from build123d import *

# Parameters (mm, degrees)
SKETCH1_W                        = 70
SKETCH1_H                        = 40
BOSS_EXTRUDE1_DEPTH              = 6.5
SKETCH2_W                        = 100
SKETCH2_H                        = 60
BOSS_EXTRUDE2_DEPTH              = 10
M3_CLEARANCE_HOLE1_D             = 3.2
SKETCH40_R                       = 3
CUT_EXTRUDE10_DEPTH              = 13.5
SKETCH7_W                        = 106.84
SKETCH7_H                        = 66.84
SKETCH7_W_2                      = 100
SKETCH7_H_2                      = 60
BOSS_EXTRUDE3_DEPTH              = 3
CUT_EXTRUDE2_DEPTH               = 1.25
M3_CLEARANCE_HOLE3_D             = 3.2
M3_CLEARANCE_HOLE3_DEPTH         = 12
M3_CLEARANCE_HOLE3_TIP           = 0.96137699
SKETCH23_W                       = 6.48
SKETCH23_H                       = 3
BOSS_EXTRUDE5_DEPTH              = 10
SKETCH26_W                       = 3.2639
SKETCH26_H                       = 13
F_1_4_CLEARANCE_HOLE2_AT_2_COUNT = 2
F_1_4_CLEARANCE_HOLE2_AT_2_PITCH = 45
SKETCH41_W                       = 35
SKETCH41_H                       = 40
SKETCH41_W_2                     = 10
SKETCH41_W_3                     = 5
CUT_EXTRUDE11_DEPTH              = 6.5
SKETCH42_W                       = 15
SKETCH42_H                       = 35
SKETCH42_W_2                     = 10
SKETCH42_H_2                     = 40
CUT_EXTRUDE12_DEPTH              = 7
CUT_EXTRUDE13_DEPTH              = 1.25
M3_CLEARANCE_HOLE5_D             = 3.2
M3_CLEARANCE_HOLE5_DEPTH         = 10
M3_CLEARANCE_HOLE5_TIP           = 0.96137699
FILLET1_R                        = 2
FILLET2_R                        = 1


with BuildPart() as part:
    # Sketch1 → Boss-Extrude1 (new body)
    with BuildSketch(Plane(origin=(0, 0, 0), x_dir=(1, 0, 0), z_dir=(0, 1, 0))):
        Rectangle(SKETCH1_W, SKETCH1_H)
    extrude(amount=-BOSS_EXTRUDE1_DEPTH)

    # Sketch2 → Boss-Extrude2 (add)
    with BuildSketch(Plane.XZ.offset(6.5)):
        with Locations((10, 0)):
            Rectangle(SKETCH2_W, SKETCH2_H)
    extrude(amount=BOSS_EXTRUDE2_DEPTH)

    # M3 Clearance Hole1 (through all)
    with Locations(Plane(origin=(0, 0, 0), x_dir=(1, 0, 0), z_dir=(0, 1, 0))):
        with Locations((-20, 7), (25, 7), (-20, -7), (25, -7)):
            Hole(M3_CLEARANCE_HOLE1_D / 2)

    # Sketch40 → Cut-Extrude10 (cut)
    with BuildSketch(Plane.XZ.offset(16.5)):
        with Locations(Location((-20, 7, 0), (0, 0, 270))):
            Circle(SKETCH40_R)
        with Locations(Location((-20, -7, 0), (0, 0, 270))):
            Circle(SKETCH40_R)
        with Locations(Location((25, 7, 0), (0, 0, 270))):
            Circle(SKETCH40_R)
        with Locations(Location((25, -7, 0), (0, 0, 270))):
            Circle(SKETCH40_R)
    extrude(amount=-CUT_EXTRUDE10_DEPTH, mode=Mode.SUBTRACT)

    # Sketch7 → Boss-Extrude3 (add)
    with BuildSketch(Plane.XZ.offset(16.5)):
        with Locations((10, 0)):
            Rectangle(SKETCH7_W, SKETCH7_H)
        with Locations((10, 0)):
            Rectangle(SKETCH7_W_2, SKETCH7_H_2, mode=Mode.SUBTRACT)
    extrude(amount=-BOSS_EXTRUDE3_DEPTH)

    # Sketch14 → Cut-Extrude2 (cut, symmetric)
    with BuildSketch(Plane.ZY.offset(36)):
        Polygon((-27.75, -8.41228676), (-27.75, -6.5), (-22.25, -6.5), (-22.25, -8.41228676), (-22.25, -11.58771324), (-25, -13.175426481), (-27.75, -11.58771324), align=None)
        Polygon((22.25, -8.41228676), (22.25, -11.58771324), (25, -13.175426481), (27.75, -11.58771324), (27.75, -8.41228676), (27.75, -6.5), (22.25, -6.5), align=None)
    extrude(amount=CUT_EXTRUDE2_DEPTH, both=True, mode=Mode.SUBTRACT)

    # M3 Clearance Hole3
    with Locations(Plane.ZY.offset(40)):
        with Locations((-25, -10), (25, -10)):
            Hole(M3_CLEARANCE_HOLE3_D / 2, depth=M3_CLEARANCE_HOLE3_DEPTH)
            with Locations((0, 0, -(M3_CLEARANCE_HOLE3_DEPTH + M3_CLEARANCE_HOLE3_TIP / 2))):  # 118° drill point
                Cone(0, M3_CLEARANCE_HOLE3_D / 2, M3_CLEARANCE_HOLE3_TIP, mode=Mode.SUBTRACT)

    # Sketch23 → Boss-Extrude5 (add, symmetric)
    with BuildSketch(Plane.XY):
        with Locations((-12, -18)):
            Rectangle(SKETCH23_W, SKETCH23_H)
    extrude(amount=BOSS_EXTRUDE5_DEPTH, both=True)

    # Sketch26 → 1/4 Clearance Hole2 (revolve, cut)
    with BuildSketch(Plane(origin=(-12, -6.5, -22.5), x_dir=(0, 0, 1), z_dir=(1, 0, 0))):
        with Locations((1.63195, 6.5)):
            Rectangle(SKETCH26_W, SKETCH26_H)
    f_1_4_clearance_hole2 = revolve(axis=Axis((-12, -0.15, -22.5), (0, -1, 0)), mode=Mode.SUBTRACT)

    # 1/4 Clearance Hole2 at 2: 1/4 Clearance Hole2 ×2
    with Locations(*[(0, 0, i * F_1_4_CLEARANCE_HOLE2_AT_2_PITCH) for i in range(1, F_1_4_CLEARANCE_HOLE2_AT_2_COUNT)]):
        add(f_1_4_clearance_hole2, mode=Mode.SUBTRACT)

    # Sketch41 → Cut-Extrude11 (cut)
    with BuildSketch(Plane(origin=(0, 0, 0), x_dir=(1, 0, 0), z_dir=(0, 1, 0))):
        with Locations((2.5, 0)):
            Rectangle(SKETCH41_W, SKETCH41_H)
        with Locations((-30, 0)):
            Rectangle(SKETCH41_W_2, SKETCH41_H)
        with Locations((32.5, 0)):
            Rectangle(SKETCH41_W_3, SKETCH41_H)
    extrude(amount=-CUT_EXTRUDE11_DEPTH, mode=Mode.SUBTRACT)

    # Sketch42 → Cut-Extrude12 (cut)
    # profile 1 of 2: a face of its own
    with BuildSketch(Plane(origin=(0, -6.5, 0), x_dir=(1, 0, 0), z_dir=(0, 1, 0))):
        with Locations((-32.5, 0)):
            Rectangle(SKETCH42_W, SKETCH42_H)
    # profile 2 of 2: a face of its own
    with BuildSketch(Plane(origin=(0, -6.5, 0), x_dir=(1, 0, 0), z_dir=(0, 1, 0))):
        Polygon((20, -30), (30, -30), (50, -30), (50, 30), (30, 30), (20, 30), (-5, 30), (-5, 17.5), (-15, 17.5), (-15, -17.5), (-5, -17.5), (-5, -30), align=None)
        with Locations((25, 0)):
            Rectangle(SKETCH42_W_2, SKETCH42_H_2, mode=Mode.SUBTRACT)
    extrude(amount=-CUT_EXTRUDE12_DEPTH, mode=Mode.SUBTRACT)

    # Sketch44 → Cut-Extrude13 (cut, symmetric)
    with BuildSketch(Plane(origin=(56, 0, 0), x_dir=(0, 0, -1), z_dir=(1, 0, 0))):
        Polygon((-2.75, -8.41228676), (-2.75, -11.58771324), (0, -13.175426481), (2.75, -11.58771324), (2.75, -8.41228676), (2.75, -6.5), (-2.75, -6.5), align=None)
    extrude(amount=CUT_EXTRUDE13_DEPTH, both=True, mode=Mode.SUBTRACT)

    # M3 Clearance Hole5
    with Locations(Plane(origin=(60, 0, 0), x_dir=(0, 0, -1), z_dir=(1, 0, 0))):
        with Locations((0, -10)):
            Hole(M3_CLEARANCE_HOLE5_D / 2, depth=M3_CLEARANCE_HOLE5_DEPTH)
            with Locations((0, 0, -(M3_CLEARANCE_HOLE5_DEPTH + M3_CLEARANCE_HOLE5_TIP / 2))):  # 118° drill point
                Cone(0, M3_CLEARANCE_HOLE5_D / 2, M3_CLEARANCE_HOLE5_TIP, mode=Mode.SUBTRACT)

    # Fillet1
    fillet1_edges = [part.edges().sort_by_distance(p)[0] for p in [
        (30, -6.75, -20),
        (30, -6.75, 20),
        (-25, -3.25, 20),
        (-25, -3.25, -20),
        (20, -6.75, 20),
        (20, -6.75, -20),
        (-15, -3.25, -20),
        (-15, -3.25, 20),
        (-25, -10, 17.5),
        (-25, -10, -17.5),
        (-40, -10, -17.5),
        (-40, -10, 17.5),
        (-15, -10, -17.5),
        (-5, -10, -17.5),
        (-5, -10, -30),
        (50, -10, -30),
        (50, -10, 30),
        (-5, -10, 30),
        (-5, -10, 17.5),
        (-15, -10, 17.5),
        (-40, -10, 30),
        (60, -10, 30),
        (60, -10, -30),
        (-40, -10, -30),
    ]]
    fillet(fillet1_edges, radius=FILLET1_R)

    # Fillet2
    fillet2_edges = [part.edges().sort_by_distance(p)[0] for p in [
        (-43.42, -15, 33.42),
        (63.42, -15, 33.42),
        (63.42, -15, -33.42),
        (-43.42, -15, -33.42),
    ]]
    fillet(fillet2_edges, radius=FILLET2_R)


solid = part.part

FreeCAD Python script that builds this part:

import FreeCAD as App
import Part
import Sketcher

V = App.Vector
Q = App.Units.Quantity


def edges_at(feature, points):
    """Names of the edges that pass closest to the given points."""
    edges = feature.Shape.Edges
    near = lambda p: min(range(len(edges)), key=lambda i: edges[i].distToShape(Part.Vertex(*p))[0])
    return sorted({f"Edge{near(p) + 1}" for p in points})

doc = App.newDocument("Part")
body = doc.addObject("PartDesign::Body", "Body")

# Sketch on XZ plane
sketch1 = body.newObject("Sketcher::SketchObject", "Sketch")
sketch1.AttachmentSupport = (doc.getObject("XZ_Plane"), [""])
sketch1.MapMode = "FlatFace"
sketch1.addGeometry(Part.LineSegment(V(-35, -20, 0), V(-35, 20, 0)), False)
sketch1.addGeometry(Part.LineSegment(V(-35, 20, 0), V(35, 20, 0)), False)
sketch1.addGeometry(Part.LineSegment(V(35, 20, 0), V(35, -20, 0)), False)
sketch1.addGeometry(Part.LineSegment(V(35, -20, 0), V(-35, -20, 0)), False)
sketch1.addConstraint(Sketcher.Constraint("Coincident", 0, 2, 1, 1))
sketch1.addConstraint(Sketcher.Constraint("Coincident", 1, 2, 2, 1))
sketch1.addConstraint(Sketcher.Constraint("Coincident", 2, 2, 3, 1))
sketch1.addConstraint(Sketcher.Constraint("Coincident", 3, 2, 0, 1))
sketch1.addConstraint(Sketcher.Constraint("Vertical", 0))
sketch1.addConstraint(Sketcher.Constraint("Horizontal", 1))
sketch1.addConstraint(Sketcher.Constraint("Vertical", 2))
sketch1.addConstraint(Sketcher.Constraint("Horizontal", 3))
sketch1.addConstraint(Sketcher.Constraint("Symmetric", 0, 2, 2, 2, -1, 1))
sketch1.addConstraint(Sketcher.Constraint("DistanceX", 1, 1, 1, 2, Q("70 mm")))
sketch1.addConstraint(Sketcher.Constraint("DistanceY", 0, 1, 0, 2, Q("40 mm")))
pad1 = body.newObject("PartDesign::Pad", "Pad")
pad1.Profile = sketch1
pad1.Length = 6.5

# Sketch on XZ plane
sketch2 = body.newObject("Sketcher::SketchObject", "Sketch001")
sketch2.AttachmentSupport = (doc.getObject("XZ_Plane"), [""])
sketch2.MapMode = "FlatFace"
sketch2.AttachmentOffset = App.Placement(V(0, 0, 6.5), App.Rotation())
sketch2.addGeometry(Part.LineSegment(V(-40, 30, 0), V(-40, -30, 0)), False)
sketch2.addGeometry(Part.LineSegment(V(-40, -30, 0), V(60, -30, 0)), False)
sketch2.addGeometry(Part.LineSegment(V(60, -30, 0), V(60, 30, 0)), False)
sketch2.addGeometry(Part.LineSegment(V(60, 30, 0), V(-40, 30, 0)), False)
sketch2.addConstraint(Sketcher.Constraint("Coincident", 0, 2, 1, 1))
sketch2.addConstraint(Sketcher.Constraint("Coincident", 1, 2, 2, 1))
sketch2.addConstraint(Sketcher.Constraint("Coincident", 2, 2, 3, 1))
sketch2.addConstraint(Sketcher.Constraint("Coincident", 3, 2, 0, 1))
sketch2.addConstraint(Sketcher.Constraint("Vertical", 0))
sketch2.addConstraint(Sketcher.Constraint("Horizontal", 1))
sketch2.addConstraint(Sketcher.Constraint("Vertical", 2))
sketch2.addConstraint(Sketcher.Constraint("Horizontal", 3))
sketch2.addConstraint(Sketcher.Constraint("DistanceX", 1, 1, 1, 2, Q("100 mm")))
sketch2.addConstraint(Sketcher.Constraint("DistanceY", 0, 2, 0, 1, Q("60 mm")))
sketch2.addConstraint(Sketcher.Constraint("DistanceX", 0, 2, -1, 1, Q("40 mm")))
sketch2.addConstraint(Sketcher.Constraint("DistanceY", 0, 2, -1, 1, Q("30 mm")))
pad2 = body.newObject("PartDesign::Pad", "Pad001")
pad2.Profile = sketch2
pad2.Length = 10

# Sketch on XZ plane
sketch3 = body.newObject("Sketcher::SketchObject", "Sketch002")
sketch3.AttachmentSupport = (doc.getObject("XZ_Plane"), [""])
sketch3.MapMode = "FlatFace"
sketch3.addGeometry(Part.Circle(V(-20, -7, 0), V(0, 0, 1), 1.6), False)
sketch3.addGeometry(Part.Circle(V(25, -7, 0), V(0, 0, 1), 1.6), False)
sketch3.addGeometry(Part.Circle(V(-20, 7, 0), V(0, 0, 1), 1.6), False)
sketch3.addGeometry(Part.Circle(V(25, 7, 0), V(0, 0, 1), 1.6), False)
sketch3.addConstraint(Sketcher.Constraint("Equal", 0, 1))
sketch3.addConstraint(Sketcher.Constraint("Equal", 1, 2))
sketch3.addConstraint(Sketcher.Constraint("Equal", 2, 3))
sketch3.addConstraint(Sketcher.Constraint("Symmetric", 0, 3, 2, 3, -1))
sketch3.addConstraint(Sketcher.Constraint("Symmetric", 1, 3, 3, 3, -1))
sketch3.addConstraint(Sketcher.Constraint("Horizontal", 0, 3, 1, 3))
sketch3.addConstraint(Sketcher.Constraint("Diameter", 0, Q("3.2 mm")))
sketch3.addConstraint(Sketcher.Constraint("DistanceX", 0, 3, -1, 1, Q("20 mm")))
sketch3.addConstraint(Sketcher.Constraint("DistanceY", 0, 3, -1, 1, Q("7 mm")))
sketch3.addConstraint(Sketcher.Constraint("DistanceX", -1, 1, 1, 3, Q("25 mm")))
doc.recompute()
hole = body.newObject("PartDesign::Hole", "Hole")
hole.Profile = sketch3
hole.ThreadType = "None"
hole.Diameter = 3.2
hole.DepthType = "ThroughAll"
hole.Reversed = True

# Sketch on XZ plane
sketch4 = body.newObject("Sketcher::SketchObject", "Sketch003")
sketch4.AttachmentSupport = (doc.getObject("XZ_Plane"), [""])
sketch4.MapMode = "FlatFace"
sketch4.AttachmentOffset = App.Placement(V(0, 0, 16.5), App.Rotation())
sketch4.addGeometry(Part.Circle(V(-20, 7, 0), V(0, 0, 1), 3), False)
sketch4.addGeometry(Part.Circle(V(-20, -7, 0), V(0, 0, 1), 3), False)
sketch4.addGeometry(Part.Circle(V(25, 7, 0), V(0, 0, 1), 3), False)
sketch4.addGeometry(Part.Circle(V(25, -7, 0), V(0, 0, 1), 3), False)
sketch4.addConstraint(Sketcher.Constraint("Equal", 0, 1))
sketch4.addConstraint(Sketcher.Constraint("Equal", 1, 2))
sketch4.addConstraint(Sketcher.Constraint("Equal", 2, 3))
sketch4.addConstraint(Sketcher.Constraint("Symmetric", 0, 3, 1, 3, -1))
sketch4.addConstraint(Sketcher.Constraint("Symmetric", 2, 3, 3, 3, -1))
sketch4.addConstraint(Sketcher.Constraint("Horizontal", 0, 3, 2, 3))
sketch4.addConstraint(Sketcher.Constraint("Diameter", 0, Q("6 mm")))
sketch4.addConstraint(Sketcher.Constraint("DistanceX", 0, 3, -1, 1, Q("20 mm")))
sketch4.addConstraint(Sketcher.Constraint("DistanceY", -1, 1, 0, 3, Q("7 mm")))
sketch4.addConstraint(Sketcher.Constraint("DistanceX", -1, 1, 2, 3, Q("25 mm")))
pocket1 = body.newObject("PartDesign::Pocket", "Pocket")
pocket1.Profile = sketch4
pocket1.Length = 13.5

# Sketch on XZ plane
sketch5 = body.newObject("Sketcher::SketchObject", "Sketch004")
sketch5.AttachmentSupport = (doc.getObject("XZ_Plane"), [""])
sketch5.MapMode = "FlatFace"
sketch5.AttachmentOffset = App.Placement(V(0, 0, 16.5), App.Rotation())
sketch5.addGeometry(Part.LineSegment(V(-43, 33, 0), V(-43, -33, 0)), False)
sketch5.addGeometry(Part.LineSegment(V(-43, -33, 0), V(63, -33, 0)), False)
sketch5.addGeometry(Part.LineSegment(V(63, -33, 0), V(63, 33, 0)), False)
sketch5.addGeometry(Part.LineSegment(V(63, 33, 0), V(-43, 33, 0)), False)
sketch5.addGeometry(Part.LineSegment(V(60, -30, 0), V(-40, -30, 0)), False)
sketch5.addGeometry(Part.LineSegment(V(-40, -30, 0), V(-40, 30, 0)), False)
sketch5.addGeometry(Part.LineSegment(V(-40, 30, 0), V(60, 30, 0)), False)
sketch5.addGeometry(Part.LineSegment(V(60, 30, 0), V(60, -30, 0)), False)
sketch5.addConstraint(Sketcher.Constraint("Coincident", 0, 2, 1, 1))
sketch5.addConstraint(Sketcher.Constraint("Coincident", 1, 2, 2, 1))
sketch5.addConstraint(Sketcher.Constraint("Coincident", 2, 2, 3, 1))
sketch5.addConstraint(Sketcher.Constraint("Coincident", 3, 2, 0, 1))
sketch5.addConstraint(Sketcher.Constraint("Coincident", 4, 2, 5, 1))
sketch5.addConstraint(Sketcher.Constraint("Coincident", 5, 2, 6, 1))
sketch5.addConstraint(Sketcher.Constraint("Coincident", 6, 2, 7, 1))
sketch5.addConstraint(Sketcher.Constraint("Coincident", 7, 2, 4, 1))
sketch5.addConstraint(Sketcher.Constraint("Vertical", 0))
sketch5.addConstraint(Sketcher.Constraint("Horizontal", 1))
sketch5.addConstraint(Sketcher.Constraint("Vertical", 2))
sketch5.addConstraint(Sketcher.Constraint("Horizontal", 3))
sketch5.addConstraint(Sketcher.Constraint("Horizontal", 4))
sketch5.addConstraint(Sketcher.Constraint("Vertical", 5))
sketch5.addConstraint(Sketcher.Constraint("Horizontal", 6))
sketch5.addConstraint(Sketcher.Constraint("Vertical", 7))
sketch5.addConstraint(Sketcher.Constraint("DistanceX", 4, 2, 4, 1, Q("100 mm")))
sketch5.addConstraint(Sketcher.Constraint("DistanceY", 5, 1, 5, 2, Q("60 mm")))
sketch5.addConstraint(Sketcher.Constraint("DistanceX", 4, 2, -1, 1, Q("40 mm")))
sketch5.addConstraint(Sketcher.Constraint("DistanceY", 4, 2, -1, 1, Q("30 mm")))
sketch5.addConstraint(Sketcher.Constraint("DistanceX", 1, 1, 1, 2, Q("106.84 mm")))
sketch5.addConstraint(Sketcher.Constraint("DistanceY", 0, 2, 0, 1, Q("66.84 mm")))
sketch5.addConstraint(Sketcher.Constraint("DistanceX", 0, 2, -1, 1, Q("43.42 mm")))
sketch5.addConstraint(Sketcher.Constraint("DistanceY", 0, 2, -1, 1, Q("33.42 mm")))
pad3 = body.newObject("PartDesign::Pad", "Pad002")
pad3.Profile = sketch5
pad3.Length = 3
pad3.Reversed = True

# Sketch on YZ plane
sketch6 = body.newObject("Sketcher::SketchObject", "Sketch005")
sketch6.AttachmentSupport = (doc.getObject("YZ_Plane"), [""])
sketch6.MapMode = "FlatFace"
sketch6.AttachmentOffset = App.Placement(V(0, 0, -36), App.Rotation())
sketch6.addGeometry(Part.LineSegment(V(-6.5, -27.8, 0), V(-11.6, -27.8, 0)), False)
sketch6.addGeometry(Part.LineSegment(V(-11.6, -27.8, 0), V(-13.2, -25, 0)), False)
sketch6.addGeometry(Part.LineSegment(V(-13.2, -25, 0), V(-11.6, -22.2, 0)), False)
sketch6.addGeometry(Part.LineSegment(V(-11.6, -22.2, 0), V(-6.5, -22.2, 0)), False)
sketch6.addGeometry(Part.LineSegment(V(-6.5, -22.2, 0), V(-6.5, -27.8, 0)), False)
sketch6.addGeometry(Part.LineSegment(V(-11.6, 22.2, 0), V(-13.2, 25, 0)), False)
sketch6.addGeometry(Part.LineSegment(V(-13.2, 25, 0), V(-11.6, 27.8, 0)), False)
sketch6.addGeometry(Part.LineSegment(V(-11.6, 27.8, 0), V(-6.5, 27.8, 0)), False)
sketch6.addGeometry(Part.LineSegment(V(-6.5, 27.8, 0), V(-6.5, 22.2, 0)), False)
sketch6.addGeometry(Part.LineSegment(V(-6.5, 22.2, 0), V(-11.6, 22.2, 0)), False)
sketch6.addConstraint(Sketcher.Constraint("Coincident", 0, 2, 1, 1))
sketch6.addConstraint(Sketcher.Constraint("Coincident", 1, 2, 2, 1))
sketch6.addConstraint(Sketcher.Constraint("Coincident", 2, 2, 3, 1))
sketch6.addConstraint(Sketcher.Constraint("Coincident", 3, 2, 4, 1))
sketch6.addConstraint(Sketcher.Constraint("Coincident", 4, 2, 0, 1))
sketch6.addConstraint(Sketcher.Constraint("Coincident", 5, 2, 6, 1))
sketch6.addConstraint(Sketcher.Constraint("Coincident", 6, 2, 7, 1))
sketch6.addConstraint(Sketcher.Constraint("Coincident", 7, 2, 8, 1))
sketch6.addConstraint(Sketcher.Constraint("Coincident", 8, 2, 9, 1))
sketch6.addConstraint(Sketcher.Constraint("Coincident", 9, 2, 5, 1))
sketch6.addConstraint(Sketcher.Constraint("Horizontal", 0))
sketch6.addConstraint(Sketcher.Constraint("Horizontal", 3))
sketch6.addConstraint(Sketcher.Constraint("Vertical", 4))
sketch6.addConstraint(Sketcher.Constraint("Horizontal", 7))
sketch6.addConstraint(Sketcher.Constraint("Vertical", 8))
sketch6.addConstraint(Sketcher.Constraint("Horizontal", 9))
sketch6.addConstraint(Sketcher.Constraint("Symmetric", 1, 2, 5, 2, -1))
sketch6.addConstraint(Sketcher.Constraint("Symmetric", 0, 2, 6, 2, -1))
sketch6.addConstraint(Sketcher.Constraint("Symmetric", 3, 2, 8, 2, -1))
sketch6.addConstraint(Sketcher.Constraint("Parallel", 1, 5))
sketch6.addConstraint(Sketcher.Constraint("Parallel", 2, 6))
sketch6.addConstraint(Sketcher.Constraint("Vertical", 0, 2, 2, 2))
sketch6.addConstraint(Sketcher.Constraint("Angle", 1, Q("120 deg")))
sketch6.addConstraint(Sketcher.Constraint("DistanceY", 4, 2, 4, 1, Q("5.5 mm")))
sketch6.addConstraint(Sketcher.Constraint("DistanceY", 1, 2, -1, 1, Q("25 mm")))
sketch6.addConstraint(Sketcher.Constraint("DistanceX", 3, 2, -1, 1, Q("6.5 mm")))
sketch6.addConstraint(Sketcher.Constraint("DistanceX", 0, 2, 0, 1, Q("5.087713 mm")))
pocket2 = body.newObject("PartDesign::Pocket", "Pocket001")
pocket2.Profile = sketch6
pocket2.Length = 2.5
pocket2.Midplane = True

# Sketch on YZ plane
sketch7 = body.newObject("Sketcher::SketchObject", "Sketch006")
sketch7.AttachmentSupport = (doc.getObject("YZ_Plane"), [""])
sketch7.MapMode = "FlatFace"
sketch7.AttachmentOffset = App.Placement(V(0, 0, -40), App.Rotation())
sketch7.addGeometry(Part.Circle(V(-10, -25, 0), V(0, 0, 1), 1.6), False)
sketch7.addGeometry(Part.Circle(V(-10, 25, 0), V(0, 0, 1), 1.6), False)
sketch7.addConstraint(Sketcher.Constraint("Equal", 0, 1))
sketch7.addConstraint(Sketcher.Constraint("Symmetric", 0, 3, 1, 3, -1))
sketch7.addConstraint(Sketcher.Constraint("Diameter", 0, Q("3.2 mm")))
sketch7.addConstraint(Sketcher.Constraint("DistanceX", 0, 3, -1, 1, Q("10 mm")))
sketch7.addConstraint(Sketcher.Constraint("DistanceY", 0, 3, -1, 1, Q("25 mm")))
doc.recompute()
hole2 = body.newObject("PartDesign::Hole", "Hole001")
hole2.Profile = sketch7
hole2.ThreadType = "None"
hole2.Diameter = 3.2
hole2.DepthType = "Dimension"
hole2.Depth = 12
hole2.DrillPoint = "Angled"
hole2.DrillPointAngle = 118
hole2.Reversed = True

# Sketch on XY plane
sketch8 = body.newObject("Sketcher::SketchObject", "Sketch007")
sketch8.AttachmentSupport = (doc.getObject("XY_Plane"), [""])
sketch8.MapMode = "FlatFace"
sketch8.addGeometry(Part.LineSegment(V(-15.2, -16.5, 0), V(-15.2, -19.5, 0)), False)
sketch8.addGeometry(Part.LineSegment(V(-15.2, -19.5, 0), V(-8.8, -19.5, 0)), False)
sketch8.addGeometry(Part.LineSegment(V(-8.8, -19.5, 0), V(-8.8, -16.5, 0)), False)
sketch8.addGeometry(Part.LineSegment(V(-8.8, -16.5, 0), V(-15.2, -16.5, 0)), False)
sketch8.addConstraint(Sketcher.Constraint("Coincident", 0, 2, 1, 1))
sketch8.addConstraint(Sketcher.Constraint("Coincident", 1, 2, 2, 1))
sketch8.addConstraint(Sketcher.Constraint("Coincident", 2, 2, 3, 1))
sketch8.addConstraint(Sketcher.Constraint("Coincident", 3, 2, 0, 1))
sketch8.addConstraint(Sketcher.Constraint("Vertical", 0))
sketch8.addConstraint(Sketcher.Constraint("Horizontal", 1))
sketch8.addConstraint(Sketcher.Constraint("Vertical", 2))
sketch8.addConstraint(Sketcher.Constraint("Horizontal", 3))
sketch8.addConstraint(Sketcher.Constraint("DistanceY", 0, 2, 0, 1, Q("3 mm")))
sketch8.addConstraint(Sketcher.Constraint("DistanceX", 1, 1, 1, 2, Q("6.48 mm")))
sketch8.addConstraint(Sketcher.Constraint("DistanceY", 0, 2, -1, 1, Q("19.5 mm")))
sketch8.addConstraint(Sketcher.Constraint("DistanceX", 0, 2, -1, 1, Q("15.24 mm")))
pad4 = body.newObject("PartDesign::Pad", "Pad003")
pad4.Profile = sketch8
pad4.Length = 20
pad4.Midplane = True

# Sketch on YZ plane
sketch9 = body.newObject("Sketcher::SketchObject", "Sketch008")
sketch9.AttachmentSupport = (doc.getObject("YZ_Plane"), [""])
sketch9.MapMode = "FlatFace"
sketch9.AttachmentOffset = App.Placement(V(0, 0, -12), App.Rotation())
sketch9.addGeometry(Part.LineSegment(V(-19.5, -22.5, 0), V(-6.5, -22.5, 0)), False)
sketch9.addGeometry(Part.LineSegment(V(-6.5, -22.5, 0), V(-6.5, -19.2, 0)), False)
sketch9.addGeometry(Part.LineSegment(V(-6.5, -19.2, 0), V(-19.5, -19.2, 0)), False)
sketch9.addGeometry(Part.LineSegment(V(-19.5, -19.2, 0), V(-19.5, -22.5, 0)), False)
sketch9.addGeometry(Part.LineSegment(V(-6.5, -22.5, 0), V(-19.5, -22.5, 0)), True)  # axis
sketch9.addConstraint(Sketcher.Constraint("Coincident", 0, 2, 1, 1))
sketch9.addConstraint(Sketcher.Constraint("Coincident", 1, 2, 2, 1))
sketch9.addConstraint(Sketcher.Constraint("Coincident", 2, 2, 3, 1))
sketch9.addConstraint(Sketcher.Constraint("Coincident", 3, 2, 0, 1))
sketch9.addConstraint(Sketcher.Constraint("Horizontal", 0))
sketch9.addConstraint(Sketcher.Constraint("Vertical", 1))
sketch9.addConstraint(Sketcher.Constraint("Horizontal", 2))
sketch9.addConstraint(Sketcher.Constraint("Vertical", 3))
sketch9.addConstraint(Sketcher.Constraint("Horizontal", 4))
sketch9.addConstraint(Sketcher.Constraint("Coincident", 4, 1, 0, 2))
sketch9.addConstraint(Sketcher.Constraint("Vertical", 2, 2, 4, 2))
sketch9.addConstraint(Sketcher.Constraint("DistanceX", 0, 1, 0, 2, Q("13 mm")))
sketch9.addConstraint(Sketcher.Constraint("DistanceX", 0, 2, -1, 1, Q("6.5 mm")))
sketch9.addConstraint(Sketcher.Constraint("DistanceY", 0, 2, -1, 1, Q("22.5 mm")))
sketch9.addConstraint(Sketcher.Constraint("DistanceY", 1, 1, 1, 2, Q("3.2639 mm")))
groove = body.newObject("PartDesign::Groove", "Groove")
groove.Profile = sketch9
groove.ReferenceAxis = (sketch9, ["Axis0"])
groove.Angle = 360
doc.recompute()

linearpattern = body.newObject("PartDesign::LinearPattern", "LinearPattern")
linearpattern.Originals = [groove]
linearpattern.Direction = (doc.getObject("Z_Axis"), [""])
linearpattern.Mode = "offset"
linearpattern.Offset = 45
linearpattern.Occurrences = 2
body.Tip = linearpattern

# Sketch on XZ plane
sketch10 = body.newObject("Sketcher::SketchObject", "Sketch009")
sketch10.AttachmentSupport = (doc.getObject("XZ_Plane"), [""])
sketch10.MapMode = "FlatFace"
sketch10.addGeometry(Part.LineSegment(V(-15, -20, 0), V(-15, 20, 0)), False)
sketch10.addGeometry(Part.LineSegment(V(-15, 20, 0), V(20, 20, 0)), False)
sketch10.addGeometry(Part.LineSegment(V(20, 20, 0), V(20, -20, 0)), False)
sketch10.addGeometry(Part.LineSegment(V(20, -20, 0), V(-15, -20, 0)), False)
sketch10.addGeometry(Part.LineSegment(V(-35, -20, 0), V(-35, 20, 0)), False)
sketch10.addGeometry(Part.LineSegment(V(-35, 20, 0), V(-25, 20, 0)), False)
sketch10.addGeometry(Part.LineSegment(V(-25, 20, 0), V(-25, -20, 0)), False)
sketch10.addGeometry(Part.LineSegment(V(-25, -20, 0), V(-35, -20, 0)), False)
sketch10.addGeometry(Part.LineSegment(V(30, -20, 0), V(30, 20, 0)), False)
sketch10.addGeometry(Part.LineSegment(V(30, 20, 0), V(35, 20, 0)), False)
sketch10.addGeometry(Part.LineSegment(V(35, 20, 0), V(35, -20, 0)), False)
sketch10.addGeometry(Part.LineSegment(V(35, -20, 0), V(30, -20, 0)), False)
sketch10.addConstraint(Sketcher.Constraint("Coincident", 0, 2, 1, 1))
sketch10.addConstraint(Sketcher.Constraint("Coincident", 1, 2, 2, 1))
sketch10.addConstraint(Sketcher.Constraint("Coincident", 2, 2, 3, 1))
sketch10.addConstraint(Sketcher.Constraint("Coincident", 3, 2, 0, 1))
sketch10.addConstraint(Sketcher.Constraint("Coincident", 4, 2, 5, 1))
sketch10.addConstraint(Sketcher.Constraint("Coincident", 5, 2, 6, 1))
sketch10.addConstraint(Sketcher.Constraint("Coincident", 6, 2, 7, 1))
sketch10.addConstraint(Sketcher.Constraint("Coincident", 7, 2, 4, 1))
sketch10.addConstraint(Sketcher.Constraint("Coincident", 8, 2, 9, 1))
sketch10.addConstraint(Sketcher.Constraint("Coincident", 9, 2, 10, 1))
sketch10.addConstraint(Sketcher.Constraint("Coincident", 10, 2, 11, 1))
sketch10.addConstraint(Sketcher.Constraint("Coincident", 11, 2, 8, 1))
sketch10.addConstraint(Sketcher.Constraint("Vertical", 0))
sketch10.addConstraint(Sketcher.Constraint("Horizontal", 1))
sketch10.addConstraint(Sketcher.Constraint("Vertical", 2))
sketch10.addConstraint(Sketcher.Constraint("Horizontal", 3))
sketch10.addConstraint(Sketcher.Constraint("Vertical", 4))
sketch10.addConstraint(Sketcher.Constraint("Horizontal", 5))
sketch10.addConstraint(Sketcher.Constraint("Vertical", 6))
sketch10.addConstraint(Sketcher.Constraint("Horizontal", 7))
sketch10.addConstraint(Sketcher.Constraint("Vertical", 8))
sketch10.addConstraint(Sketcher.Constraint("Horizontal", 9))
sketch10.addConstraint(Sketcher.Constraint("Vertical", 10))
sketch10.addConstraint(Sketcher.Constraint("Horizontal", 11))
sketch10.addConstraint(Sketcher.Constraint("Symmetric", 7, 2, 9, 2, -1, 1))
sketch10.addConstraint(Sketcher.Constraint("Horizontal", 1, 2, 4, 2))
sketch10.addConstraint(Sketcher.Constraint("Horizontal", 3, 2, 6, 2))
sketch10.addConstraint(Sketcher.Constraint("Horizontal", 5, 2, 8, 2))
sketch10.addConstraint(Sketcher.Constraint("Horizontal", 7, 2, 10, 2))
sketch10.addConstraint(Sketcher.Constraint("DistanceX", 1, 1, 1, 2, Q("35 mm")))
sketch10.addConstraint(Sketcher.Constraint("DistanceX", 5, 1, 5, 2, Q("10 mm")))
sketch10.addConstraint(Sketcher.Constraint("DistanceX", 9, 1, 9, 2, Q("5 mm")))
sketch10.addConstraint(Sketcher.Constraint("DistanceY", 0, 1, 0, 2, Q("40 mm")))
sketch10.addConstraint(Sketcher.Constraint("DistanceX", 0, 2, -1, 1, Q("15 mm")))
sketch10.addConstraint(Sketcher.Constraint("DistanceX", 4, 2, -1, 1, Q("35 mm")))
pocket3 = body.newObject("PartDesign::Pocket", "Pocket002")
pocket3.Profile = sketch10
pocket3.Length = 6.5
pocket3.Reversed = True

# Sketch on XZ plane
sketch11 = body.newObject("Sketcher::SketchObject", "Sketch010")
sketch11.AttachmentSupport = (doc.getObject("XZ_Plane"), [""])
sketch11.MapMode = "FlatFace"
sketch11.AttachmentOffset = App.Placement(V(0, 0, 6.5), App.Rotation())
sketch11.addGeometry(Part.LineSegment(V(-40, -18, 0), V(-40, 18, 0)), False)
sketch11.addGeometry(Part.LineSegment(V(-40, 18, 0), V(-25, 18, 0)), False)
sketch11.addGeometry(Part.LineSegment(V(-25, 18, 0), V(-25, -18, 0)), False)
sketch11.addGeometry(Part.LineSegment(V(-25, -18, 0), V(-40, -18, 0)), False)
sketch11.addGeometry(Part.LineSegment(V(50, 30, 0), V(50, -30, 0)), False)
sketch11.addGeometry(Part.LineSegment(V(50, -30, 0), V(-5, -30, 0)), False)
sketch11.addGeometry(Part.LineSegment(V(-5, -30, 0), V(-5, -18, 0)), False)
sketch11.addGeometry(Part.LineSegment(V(-5, -18, 0), V(-15, -18, 0)), False)
sketch11.addGeometry(Part.LineSegment(V(-15, -18, 0), V(-15, 18, 0)), False)
sketch11.addGeometry(Part.LineSegment(V(-15, 18, 0), V(-5, 18, 0)), False)
sketch11.addGeometry(Part.LineSegment(V(-5, 18, 0), V(-5, 30, 0)), False)
sketch11.addGeometry(Part.LineSegment(V(-5, 30, 0), V(50, 30, 0)), False)
sketch11.addGeometry(Part.LineSegment(V(30, 20, 0), V(20, 20, 0)), False)
sketch11.addGeometry(Part.LineSegment(V(20, 20, 0), V(20, -20, 0)), False)
sketch11.addGeometry(Part.LineSegment(V(20, -20, 0), V(30, -20, 0)), False)
sketch11.addGeometry(Part.LineSegment(V(30, -20, 0), V(30, 20, 0)), False)
sketch11.addConstraint(Sketcher.Constraint("Coincident", 0, 2, 1, 1))
sketch11.addConstraint(Sketcher.Constraint("Coincident", 1, 2, 2, 1))
sketch11.addConstraint(Sketcher.Constraint("Coincident", 2, 2, 3, 1))
sketch11.addConstraint(Sketcher.Constraint("Coincident", 3, 2, 0, 1))
sketch11.addConstraint(Sketcher.Constraint("Coincident", 4, 2, 5, 1))
sketch11.addConstraint(Sketcher.Constraint("Coincident", 5, 2, 6, 1))
sketch11.addConstraint(Sketcher.Constraint("Coincident", 6, 2, 7, 1))
sketch11.addConstraint(Sketcher.Constraint("Coincident", 7, 2, 8, 1))
sketch11.addConstraint(Sketcher.Constraint("Coincident", 8, 2, 9, 1))
sketch11.addConstraint(Sketcher.Constraint("Coincident", 9, 2, 10, 1))
sketch11.addConstraint(Sketcher.Constraint("Coincident", 10, 2, 11, 1))
sketch11.addConstraint(Sketcher.Constraint("Coincident", 11, 2, 4, 1))
sketch11.addConstraint(Sketcher.Constraint("Coincident", 12, 2, 13, 1))
sketch11.addConstraint(Sketcher.Constraint("Coincident", 13, 2, 14, 1))
sketch11.addConstraint(Sketcher.Constraint("Coincident", 14, 2, 15, 1))
sketch11.addConstraint(Sketcher.Constraint("Coincident", 15, 2, 12, 1))
sketch11.addConstraint(Sketcher.Constraint("Vertical", 0))
sketch11.addConstraint(Sketcher.Constraint("Horizontal", 1))
sketch11.addConstraint(Sketcher.Constraint("Vertical", 2))
sketch11.addConstraint(Sketcher.Constraint("Horizontal", 3))
sketch11.addConstraint(Sketcher.Constraint("Vertical", 4))
sketch11.addConstraint(Sketcher.Constraint("Horizontal", 5))
sketch11.addConstraint(Sketcher.Constraint("Vertical", 6))
sketch11.addConstraint(Sketcher.Constraint("Horizontal", 7))
sketch11.addConstraint(Sketcher.Constraint("Vertical", 8))
sketch11.addConstraint(Sketcher.Constraint("Horizontal", 9))
sketch11.addConstraint(Sketcher.Constraint("Vertical", 10))
sketch11.addConstraint(Sketcher.Constraint("Horizontal", 11))
sketch11.addConstraint(Sketcher.Constraint("Horizontal", 12))
sketch11.addConstraint(Sketcher.Constraint("Vertical", 13))
sketch11.addConstraint(Sketcher.Constraint("Horizontal", 14))
sketch11.addConstraint(Sketcher.Constraint("Vertical", 15))
sketch11.addConstraint(Sketcher.Constraint("Symmetric", 6, 2, 9, 2, -1))
sketch11.addConstraint(Sketcher.Constraint("Horizontal", 3, 2, 6, 2))
sketch11.addConstraint(Sketcher.Constraint("Horizontal", 1, 2, 8, 2))
sketch11.addConstraint(Sketcher.Constraint("Equal", 9, 12))
sketch11.addConstraint(Sketcher.Constraint("Equal", 6, 10))
sketch11.addConstraint(Sketcher.Constraint("DistanceX", 1, 1, 1, 2, Q("15 mm")))
sketch11.addConstraint(Sketcher.Constraint("DistanceX", 5, 2, 5, 1, Q("55 mm")))
sketch11.addConstraint(Sketcher.Constraint("DistanceX", 7, 2, 7, 1, Q("10 mm")))
sketch11.addConstraint(Sketcher.Constraint("DistanceY", 0, 1, 0, 2, Q("35 mm")))
sketch11.addConstraint(Sketcher.Constraint("DistanceY", 4, 2, 4, 1, Q("60 mm")))
sketch11.addConstraint(Sketcher.Constraint("DistanceY", 13, 2, 13, 1, Q("40 mm")))
sketch11.addConstraint(Sketcher.Constraint("DistanceX", 0, 2, -1, 1, Q("40 mm")))
sketch11.addConstraint(Sketcher.Constraint("DistanceX", -1, 1, 4, 2, Q("50 mm")))
sketch11.addConstraint(Sketcher.Constraint("DistanceX", -1, 1, 12, 2, Q("20 mm")))
sketch11.addConstraint(Sketcher.Constraint("DistanceY", -1, 1, 12, 2, Q("20 mm")))
pocket4 = body.newObject("PartDesign::Pocket", "Pocket003")
pocket4.Profile = sketch11
pocket4.Length = 7
pocket4.Reversed = True

# Sketch on YZ plane
sketch12 = body.newObject("Sketcher::SketchObject", "Sketch011")
sketch12.AttachmentSupport = (doc.getObject("YZ_Plane"), [""])
sketch12.MapMode = "FlatFace"
sketch12.AttachmentOffset = App.Placement(V(0, 0, 56), App.Rotation())
sketch12.addGeometry(Part.LineSegment(V(-11.6, 2.8, 0), V(-13.2, 0, 0)), False)
sketch12.addGeometry(Part.LineSegment(V(-13.2, 0, 0), V(-11.6, -2.8, 0)), False)
sketch12.addGeometry(Part.LineSegment(V(-11.6, -2.8, 0), V(-6.5, -2.8, 0)), False)
sketch12.addGeometry(Part.LineSegment(V(-6.5, -2.8, 0), V(-6.5, 2.8, 0)), False)
sketch12.addGeometry(Part.LineSegment(V(-6.5, 2.8, 0), V(-11.6, 2.8, 0)), False)
sketch12.addConstraint(Sketcher.Constraint("Coincident", 0, 2, 1, 1))
sketch12.addConstraint(Sketcher.Constraint("Coincident", 1, 2, 2, 1))
sketch12.addConstraint(Sketcher.Constraint("Coincident", 2, 2, 3, 1))
sketch12.addConstraint(Sketcher.Constraint("Coincident", 3, 2, 4, 1))
sketch12.addConstraint(Sketcher.Constraint("Coincident", 4, 2, 0, 1))
sketch12.addConstraint(Sketcher.Constraint("Horizontal", 2))
sketch12.addConstraint(Sketcher.Constraint("Vertical", 3))
sketch12.addConstraint(Sketcher.Constraint("Horizontal", 4))
sketch12.addConstraint(Sketcher.Constraint("Symmetric", 1, 2, 4, 2, -1))
sketch12.addConstraint(Sketcher.Constraint("PointOnObject", 0, 2, -1))
sketch12.addConstraint(Sketcher.Constraint("Angle", 0, Q("-120 deg")))
sketch12.addConstraint(Sketcher.Constraint("DistanceY", 3, 1, 3, 2, Q("5.5 mm")))
sketch12.addConstraint(Sketcher.Constraint("DistanceX", 2, 2, -1, 1, Q("6.5 mm")))
sketch12.addConstraint(Sketcher.Constraint("DistanceX", 2, 1, 2, 2, Q("5.087713 mm")))
pocket5 = body.newObject("PartDesign::Pocket", "Pocket004")
pocket5.Profile = sketch12
pocket5.Length = 2.5
pocket5.Midplane = True

# Sketch on YZ plane
sketch13 = body.newObject("Sketcher::SketchObject", "Sketch012")
sketch13.AttachmentSupport = (doc.getObject("YZ_Plane"), [""])
sketch13.MapMode = "FlatFace"
sketch13.AttachmentOffset = App.Placement(V(0, 0, 60), App.Rotation())
sketch13.addGeometry(Part.Circle(V(-10, 0, 0), V(0, 0, 1), 1.6), False)
sketch13.addConstraint(Sketcher.Constraint("PointOnObject", 0, 3, -1))
sketch13.addConstraint(Sketcher.Constraint("Diameter", 0, Q("3.2 mm")))
sketch13.addConstraint(Sketcher.Constraint("DistanceX", 0, 3, -1, 1, Q("10 mm")))
doc.recompute()
hole3 = body.newObject("PartDesign::Hole", "Hole002")
hole3.Profile = sketch13
hole3.ThreadType = "None"
hole3.Diameter = 3.2
hole3.DepthType = "Dimension"
hole3.Depth = 10
hole3.DrillPoint = "Angled"
hole3.DrillPointAngle = 118
doc.recompute()

fillet = body.newObject("PartDesign::Fillet", "Fillet")
fillet.Base = (hole3, edges_at(hole3, [
    (30, -6.75, -20),
    (30, -6.75, 20),
    (-25, -3.25, 20),
    (-25, -3.25, -20),
    (20, -6.75, 20),
    (20, -6.75, -20),
    (-15, -3.25, -20),
    (-15, -3.25, 20),
    (-25, -10, 17.5),
    (-25, -10, -17.5),
    (-40, -10, -17.5),
    (-40, -10, 17.5),
    (-15, -10, -17.5),
    (-5, -10, -17.5),
    (-5, -10, -30),
    (50, -10, -30),
    (50, -10, 30),
    (-5, -10, 30),
    (-5, -10, 17.5),
    (-15, -10, 17.5),
    (-40, -10, 30),
    (60, -10, 30),
    (60, -10, -30),
    (-40, -10, -30),
]))
fillet.Radius = 2
doc.recompute()

fillet2 = body.newObject("PartDesign::Fillet", "Fillet001")
fillet2.Base = (fillet, edges_at(fillet, [
    (-43.42, -15, 33.42),
    (63.42, -15, 33.42),
    (63.42, -15, -33.42),
    (-43.42, -15, -33.42),
]))
fillet2.Radius = 1

doc.recompute()
